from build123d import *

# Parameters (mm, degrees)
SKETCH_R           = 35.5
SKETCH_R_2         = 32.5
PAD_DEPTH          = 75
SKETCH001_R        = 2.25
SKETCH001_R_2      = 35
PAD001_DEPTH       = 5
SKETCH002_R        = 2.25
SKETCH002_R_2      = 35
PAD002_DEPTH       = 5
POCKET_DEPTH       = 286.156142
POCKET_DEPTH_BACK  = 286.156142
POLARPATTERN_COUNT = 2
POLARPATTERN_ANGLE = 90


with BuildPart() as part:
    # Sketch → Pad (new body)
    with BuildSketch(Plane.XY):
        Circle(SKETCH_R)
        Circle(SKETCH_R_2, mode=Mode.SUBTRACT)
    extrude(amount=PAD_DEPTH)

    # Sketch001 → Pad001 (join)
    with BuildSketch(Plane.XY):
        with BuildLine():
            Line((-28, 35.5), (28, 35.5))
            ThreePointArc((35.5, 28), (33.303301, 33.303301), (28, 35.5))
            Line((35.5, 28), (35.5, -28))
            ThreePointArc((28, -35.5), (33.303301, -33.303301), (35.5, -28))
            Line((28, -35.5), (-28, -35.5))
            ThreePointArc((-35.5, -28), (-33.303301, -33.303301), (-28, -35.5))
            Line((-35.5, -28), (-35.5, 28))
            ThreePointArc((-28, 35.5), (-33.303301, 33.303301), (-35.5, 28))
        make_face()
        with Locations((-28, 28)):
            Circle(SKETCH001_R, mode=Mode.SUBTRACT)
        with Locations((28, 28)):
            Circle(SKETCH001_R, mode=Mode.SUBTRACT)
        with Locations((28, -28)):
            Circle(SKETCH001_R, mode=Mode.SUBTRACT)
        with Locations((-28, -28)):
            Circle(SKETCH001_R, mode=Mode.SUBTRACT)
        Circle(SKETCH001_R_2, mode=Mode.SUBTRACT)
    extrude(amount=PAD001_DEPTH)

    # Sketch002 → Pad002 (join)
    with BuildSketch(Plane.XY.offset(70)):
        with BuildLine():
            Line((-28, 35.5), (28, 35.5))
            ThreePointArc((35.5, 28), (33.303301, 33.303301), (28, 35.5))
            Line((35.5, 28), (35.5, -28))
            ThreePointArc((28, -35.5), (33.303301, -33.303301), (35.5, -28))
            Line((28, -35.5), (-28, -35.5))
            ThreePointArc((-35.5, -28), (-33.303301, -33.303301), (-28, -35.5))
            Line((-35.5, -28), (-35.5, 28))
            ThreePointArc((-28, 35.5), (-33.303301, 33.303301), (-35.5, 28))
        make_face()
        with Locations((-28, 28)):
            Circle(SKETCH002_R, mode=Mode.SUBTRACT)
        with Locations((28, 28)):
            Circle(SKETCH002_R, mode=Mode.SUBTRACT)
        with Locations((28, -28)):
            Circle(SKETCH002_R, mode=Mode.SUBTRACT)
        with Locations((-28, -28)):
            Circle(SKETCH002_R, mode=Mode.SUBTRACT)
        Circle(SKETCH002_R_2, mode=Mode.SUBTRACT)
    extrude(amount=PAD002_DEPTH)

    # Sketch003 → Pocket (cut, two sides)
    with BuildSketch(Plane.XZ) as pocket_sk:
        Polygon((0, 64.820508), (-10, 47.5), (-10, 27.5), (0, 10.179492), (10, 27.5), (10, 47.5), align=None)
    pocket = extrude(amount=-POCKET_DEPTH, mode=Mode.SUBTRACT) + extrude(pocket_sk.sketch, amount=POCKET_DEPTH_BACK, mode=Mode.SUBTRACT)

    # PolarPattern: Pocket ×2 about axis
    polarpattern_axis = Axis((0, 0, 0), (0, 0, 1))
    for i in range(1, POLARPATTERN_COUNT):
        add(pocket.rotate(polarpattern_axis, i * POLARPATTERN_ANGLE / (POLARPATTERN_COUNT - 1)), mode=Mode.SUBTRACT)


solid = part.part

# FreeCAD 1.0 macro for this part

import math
import FreeCAD as App
import Part
import Sketcher
Q = App.Units.Quantity

doc = App.newDocument("Part")
body = doc.addObject("PartDesign::Body", "Body")

# Sketch on XY plane
sketch1 = body.newObject("Sketcher::SketchObject", "Sketch")
sketch1.AttachmentSupport = (doc.getObject("XY_Plane"), [""])
sketch1.MapMode = "FlatFace"
sketch1.addGeometry([
    Part.Circle(App.Vector(0, 0, 0), App.Vector(0, 0, 1), 36),
    Part.Circle(App.Vector(0, 0, 0), App.Vector(0, 0, 1), 32),
], False)
sketch1.addConstraint([
    Sketcher.Constraint("Coincident", 0, 3, -1, 1),
    Sketcher.Constraint("Coincident", 1, 3, -1, 1),
    Sketcher.Constraint("Diameter", 0, 71.0),
    Sketcher.Constraint("Diameter", 1, 65.0),
])
pad1 = body.newObject("PartDesign::Pad", "Pad")
pad1.Profile = sketch1
pad1.Length = 75

# Sketch on XY plane
sketch2 = body.newObject("Sketcher::SketchObject", "Sketch001")
sketch2.AttachmentSupport = (doc.getObject("XY_Plane"), [""])
sketch2.MapMode = "FlatFace"
sketch2.addGeometry([
    Part.LineSegment(App.Vector(28, 35.5, 0), App.Vector(-28, 35.5, 0)),  # 0
    Part.ArcOfCircle(Part.Circle(App.Vector(-28, 28, 0), App.Vector(0, 0, 1), 7.5), math.radians(90), math.radians(180)),  # 1
    Part.LineSegment(App.Vector(-35.5, 28, 0), App.Vector(-35.5, -28, 0)),  # 2
    Part.ArcOfCircle(Part.Circle(App.Vector(-28, -28, 0), App.Vector(0, 0, 1), 7.5), math.radians(180), math.radians(270)),  # 3
    Part.LineSegment(App.Vector(-28, -35.5, 0), App.Vector(28, -35.5, 0)),  # 4
    Part.ArcOfCircle(Part.Circle(App.Vector(28, -28, 0), App.Vector(0, 0, 1), 7.5), math.radians(-90), math.radians(0)),  # 5
    Part.LineSegment(App.Vector(35.5, -28, 0), App.Vector(35.5, 28, 0)),  # 6
    Part.ArcOfCircle(Part.Circle(App.Vector(28, 28, 0), App.Vector(0, 0, 1), 7.5), math.radians(0), math.radians(90)),  # 7
    Part.Circle(App.Vector(28, -28, 0), App.Vector(0, 0, 1), 2.2),  # 8
    Part.Circle(App.Vector(-28, -28, 0), App.Vector(0, 0, 1), 2.2),  # 9
    Part.Circle(App.Vector(28, 28, 0), App.Vector(0, 0, 1), 2.2),  # 10
    Part.Circle(App.Vector(0, 0, 0), App.Vector(0, 0, 1), 35),  # 11
    Part.Circle(App.Vector(-28, 28, 0), App.Vector(0, 0, 1), 2.2),  # 12
], False)
sketch2.addConstraint([
    Sketcher.Constraint("Tangent", 0, 2, 1, 1),
    Sketcher.Constraint("Tangent", 1, 2, 2, 1),
    Sketcher.Constraint("Tangent", 2, 2, 3, 1),
    Sketcher.Constraint("Tangent", 3, 2, 4, 1),
    Sketcher.Constraint("Tangent", 4, 2, 5, 1),
    Sketcher.Constraint("Tangent", 5, 2, 6, 1),
    Sketcher.Constraint("Tangent", 6, 2, 7, 1),
    Sketcher.Constraint("Tangent", 7, 2, 0, 1),
    Sketcher.Constraint("Horizontal", 0),
    Sketcher.Constraint("Vertical", 2),
    Sketcher.Constraint("Horizontal", 4),
    Sketcher.Constraint("Vertical", 6),
    Sketcher.Constraint("Coincident", 11, 3, -1, 1),
    Sketcher.Constraint("Coincident", 8, 3, 5, 3),
    Sketcher.Constraint("Coincident", 9, 3, 3, 3),
    Sketcher.Constraint("Coincident", 10, 3, 7, 3),
    Sketcher.Constraint("Coincident", 12, 3, 1, 3),
    Sketcher.Constraint("Equal", 1, 3),
    Sketcher.Constraint("Equal", 3, 5),
    Sketcher.Constraint("Equal", 5, 7),
    Sketcher.Constraint("Equal", 8, 9),
    Sketcher.Constraint("Equal", 9, 10),
    Sketcher.Constraint("Equal", 10, 12),
    Sketcher.Constraint("Symmetric", 1, 3, 5, 3, -1, 1),
    Sketcher.Constraint("Equal", 4, 2),
    Sketcher.Constraint("Diameter", 11, 70.0),
    Sketcher.Constraint("Diameter", 8, 4.5),
    Sketcher.Constraint("Radius", 1, 7.5),
    Sketcher.Constraint("DistanceX", 0, 2, 0, 1, 56.0),
])
pad2 = body.newObject("PartDesign::Pad", "Pad001")
pad2.Profile = sketch2
pad2.Length = 5

# Sketch on XY plane
sketch3 = body.newObject("Sketcher::SketchObject", "Sketch002")
sketch3.AttachmentSupport = (doc.getObject("XY_Plane"), [""])
sketch3.MapMode = "FlatFace"
sketch3.AttachmentOffset = App.Placement(App.Vector(0, 0, 70), App.Rotation())
sketch3.addGeometry([
    Part.LineSegment(App.Vector(28, 35.5, 0), App.Vector(-28, 35.5, 0)),  # 0
    Part.ArcOfCircle(Part.Circle(App.Vector(-28, 28, 0), App.Vector(0, 0, 1), 7.5), math.radians(90), math.radians(180)),  # 1
    Part.LineSegment(App.Vector(-35.5, 28, 0), App.Vector(-35.5, -28, 0)),  # 2
    Part.ArcOfCircle(Part.Circle(App.Vector(-28, -28, 0), App.Vector(0, 0, 1), 7.5), math.radians(180), math.radians(270)),  # 3
    Part.LineSegment(App.Vector(-28, -35.5, 0), App.Vector(28, -35.5, 0)),  # 4
    Part.ArcOfCircle(Part.Circle(App.Vector(28, -28, 0), App.Vector(0, 0, 1), 7.5), math.radians(-90), math.radians(0)),  # 5
    Part.LineSegment(App.Vector(35.5, -28, 0), App.Vector(35.5, 28, 0)),  # 6
    Part.ArcOfCircle(Part.Circle(App.Vector(28, 28, 0), App.Vector(0, 0, 1), 7.5), math.radians(0), math.radians(90)),  # 7
    Part.Circle(App.Vector(28, -28, 0), App.Vector(0, 0, 1), 2.2),  # 8
    Part.Circle(App.Vector(-28, -28, 0), App.Vector(0, 0, 1), 2.2),  # 9
    Part.Circle(App.Vector(28, 28, 0), App.Vector(0, 0, 1), 2.2),  # 10
    Part.Circle(App.Vector(0, 0, 0), App.Vector(0, 0, 1), 35),  # 11
    Part.Circle(App.Vector(-28, 28, 0), App.Vector(0, 0, 1), 2.2),  # 12
], False)
sketch3.addConstraint([
    Sketcher.Constraint("Tangent", 0, 2, 1, 1),
    Sketcher.Constraint("Tangent", 1, 2, 2, 1),
    Sketcher.Constraint("Tangent", 2, 2, 3, 1),
    Sketcher.Constraint("Tangent", 3, 2, 4, 1),
    Sketcher.Constraint("Tangent", 4, 2, 5, 1),
    Sketcher.Constraint("Tangent", 5, 2, 6, 1),
    Sketcher.Constraint("Tangent", 6, 2, 7, 1),
    Sketcher.Constraint("Tangent", 7, 2, 0, 1),
    Sketcher.Constraint("Horizontal", 0),
    Sketcher.Constraint("Vertical", 2),
    Sketcher.Constraint("Horizontal", 4),
    Sketcher.Constraint("Vertical", 6),
    Sketcher.Constraint("Coincident", 11, 3, -1, 1),
    Sketcher.Constraint("Coincident", 8, 3, 5, 3),
    Sketcher.Constraint("Coincident", 9, 3, 3, 3),
    Sketcher.Constraint("Coincident", 10, 3, 7, 3),
    Sketcher.Constraint("Coincident", 12, 3, 1, 3),
    Sketcher.Constraint("Equal", 1, 3),
    Sketcher.Constraint("Equal", 3, 5),
    Sketcher.Constraint("Equal", 5, 7),
    Sketcher.Constraint("Equal", 8, 9),
    Sketcher.Constraint("Equal", 9, 10),
    Sketcher.Constraint("Equal", 10, 12),
    Sketcher.Constraint("Symmetric", 1, 3, 5, 3, -1, 1),
    Sketcher.Constraint("Equal", 4, 2),
    Sketcher.Constraint("Diameter", 11, 70.0),
    Sketcher.Constraint("Diameter", 8, 4.5),
    Sketcher.Constraint("Radius", 1, 7.5),
    Sketcher.Constraint("DistanceX", 0, 2, 0, 1, 56.0),
])
pad3 = body.newObject("PartDesign::Pad", "Pad002")
pad3.Profile = sketch3
pad3.Length = 5

# Sketch on XZ plane
sketch4 = body.newObject("Sketcher::SketchObject", "Sketch003")
sketch4.AttachmentSupport = (doc.getObject("XZ_Plane"), [""])
sketch4.MapMode = "FlatFace"
sketch4.addGeometry([
    Part.LineSegment(App.Vector(0, 65, 0), App.Vector(-10, 48, 0)),  # 0
    Part.LineSegment(App.Vector(-10, 48, 0), App.Vector(-10, 28, 0)),  # 1
    Part.LineSegment(App.Vector(-10, 28, 0), App.Vector(0, 10, 0)),  # 2
    Part.LineSegment(App.Vector(0, 10, 0), App.Vector(10, 28, 0)),  # 3
    Part.LineSegment(App.Vector(10, 28, 0), App.Vector(10, 48, 0)),  # 4
    Part.LineSegment(App.Vector(10, 48, 0), App.Vector(0, 65, 0)),  # 5
], False)
sketch4.addConstraint([
    Sketcher.Constraint("Coincident", 0, 2, 1, 1),
    Sketcher.Constraint("Coincident", 1, 2, 2, 1),
    Sketcher.Constraint("Coincident", 2, 2, 3, 1),
    Sketcher.Constraint("Coincident", 3, 2, 4, 1),
    Sketcher.Constraint("Coincident", 4, 2, 5, 1),
    Sketcher.Constraint("Coincident", 5, 2, 0, 1),
    Sketcher.Constraint("Vertical", 1),
    Sketcher.Constraint("Vertical", 4),
    Sketcher.Constraint("Symmetric", 1, 2, 3, 2, -2),
    Sketcher.Constraint("PointOnObject", 2, 2, -2),
    Sketcher.Constraint("PointOnObject", 5, 2, -2),
    Sketcher.Constraint("Parallel", 0, 3),
    Sketcher.Constraint("Parallel", 2, 5),
    Sketcher.Constraint("DistanceY", 1, 2, 1, 1, 20.0),
    Sketcher.Constraint("Angle", 0, Q("-120 deg")),
    Sketcher.Constraint("Distance", 0, 20.0),
    Sketcher.Constraint("DistanceY", -1, 1, 0, 2, 47.5),
])
pocket1 = body.newObject("PartDesign::Pocket", "Pocket")
pocket1.Profile = sketch4
pocket1.Type = "ThroughAll"
pocket1.Midplane = True
doc.recompute()

polarpattern = body.newObject("PartDesign::PolarPattern", "PolarPattern")
polarpattern.Originals = [pocket1]
polarpattern.Axis = (doc.getObject("Z_Axis"), [""])
polarpattern.Angle = 90
polarpattern.Occurrences = 2
body.Tip = polarpattern

doc.recompute()
